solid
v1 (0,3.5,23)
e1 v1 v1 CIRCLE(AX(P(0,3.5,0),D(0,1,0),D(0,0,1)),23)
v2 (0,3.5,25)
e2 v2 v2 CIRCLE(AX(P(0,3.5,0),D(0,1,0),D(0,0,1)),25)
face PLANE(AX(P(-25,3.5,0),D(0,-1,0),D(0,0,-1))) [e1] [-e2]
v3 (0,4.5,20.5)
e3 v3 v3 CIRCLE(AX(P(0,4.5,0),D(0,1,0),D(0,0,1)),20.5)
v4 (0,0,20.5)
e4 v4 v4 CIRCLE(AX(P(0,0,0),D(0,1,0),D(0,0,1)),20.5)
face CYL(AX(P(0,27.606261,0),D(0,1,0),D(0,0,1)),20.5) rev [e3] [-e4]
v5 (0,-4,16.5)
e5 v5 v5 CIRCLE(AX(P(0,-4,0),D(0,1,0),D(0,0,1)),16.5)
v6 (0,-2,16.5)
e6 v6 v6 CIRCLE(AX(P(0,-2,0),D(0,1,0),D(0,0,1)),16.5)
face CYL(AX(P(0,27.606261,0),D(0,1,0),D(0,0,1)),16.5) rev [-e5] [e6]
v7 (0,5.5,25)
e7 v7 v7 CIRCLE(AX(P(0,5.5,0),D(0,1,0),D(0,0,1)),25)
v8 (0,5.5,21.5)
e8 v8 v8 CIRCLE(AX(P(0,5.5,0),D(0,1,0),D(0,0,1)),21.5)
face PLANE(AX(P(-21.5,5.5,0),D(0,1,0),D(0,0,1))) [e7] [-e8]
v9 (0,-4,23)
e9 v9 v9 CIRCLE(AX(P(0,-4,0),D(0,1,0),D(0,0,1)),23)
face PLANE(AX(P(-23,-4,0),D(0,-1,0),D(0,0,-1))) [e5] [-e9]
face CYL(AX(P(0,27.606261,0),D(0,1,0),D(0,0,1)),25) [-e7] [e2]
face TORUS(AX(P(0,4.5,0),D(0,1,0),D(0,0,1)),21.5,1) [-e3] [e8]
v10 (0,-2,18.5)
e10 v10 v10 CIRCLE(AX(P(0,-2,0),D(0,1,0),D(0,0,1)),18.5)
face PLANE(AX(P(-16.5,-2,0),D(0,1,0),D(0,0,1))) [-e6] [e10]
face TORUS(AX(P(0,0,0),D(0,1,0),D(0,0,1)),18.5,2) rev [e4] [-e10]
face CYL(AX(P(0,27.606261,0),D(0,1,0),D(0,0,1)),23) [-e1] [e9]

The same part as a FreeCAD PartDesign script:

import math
import FreeCAD as App
import Part
import Sketcher
from FreeCAD import Vector

doc = App.newDocument("Part")
body = doc.addObject("PartDesign::Body", "Body")

# Sketch on XY plane
sketch1 = body.newObject("Sketcher::SketchObject", "Sketch")
sketch1.AttachmentSupport = (doc.getObject("XY_Plane"), [""])
sketch1.MapMode = "FlatFace"
sketch1.addGeometry([
    Part.LineSegment(Vector(-16.5, -4, 0), Vector(-16.5, -2, 0)),  # 0
    Part.LineSegment(Vector(-16.5, -2, 0), Vector(-18.5, -2, 0)),  # 1
    Part.ArcOfCircle(Part.Circle(Vector(-18.5, 0, 0), Vector(0, 0, 1), 2), math.radians(-180), math.radians(-90)),  # 2
    Part.LineSegment(Vector(-20.5, 0, 0), Vector(-20.5, 4.5, 0)),  # 3
    Part.ArcOfCircle(Part.Circle(Vector(-21.5, 4.5, 0), Vector(0, 0, 1), 1), math.radians(0), math.radians(90)),  # 4
    Part.LineSegment(Vector(-21.5, 5.5, 0), Vector(-25, 5.5, 0)),  # 5
    Part.LineSegment(Vector(-25, 5.5, 0), Vector(-25, 3.5, 0)),  # 6
    Part.LineSegment(Vector(-25, 3.5, 0), Vector(-23, 3.5, 0)),  # 7
    Part.LineSegment(Vector(-23, 3.5, 0), Vector(-23, -4, 0)),  # 8
    Part.LineSegment(Vector(-23, -4, 0), Vector(-16.5, -4, 0)),  # 9
], False)
sketch1.addConstraint([
    Sketcher.Constraint("Coincident", 0, 2, 1, 1),
    Sketcher.Constraint("Tangent", 1, 2, 2, 2),
    Sketcher.Constraint("Tangent", 2, 1, 3, 1),
    Sketcher.Constraint("Tangent", 3, 2, 4, 1),
    Sketcher.Constraint("Tangent", 4, 2, 5, 1),
    Sketcher.Constraint("Coincident", 5, 2, 6, 1),
    Sketcher.Constraint("Coincident", 6, 2, 7, 1),
    Sketcher.Constraint("Coincident", 7, 2, 8, 1),
    Sketcher.Constraint("Coincident", 8, 2, 9, 1),
    Sketcher.Constraint("Coincident", 9, 2, 0, 1),
    Sketcher.Constraint("Vertical", 0),
    Sketcher.Constraint("Horizontal", 1),
    Sketcher.Constraint("Vertical", 3),
    Sketcher.Constraint("Horizontal", 5),
    Sketcher.Constraint("Vertical", 6),
    Sketcher.Constraint("Horizontal", 7),
    Sketcher.Constraint("Vertical", 8),
    Sketcher.Constraint("Horizontal", 9),
    Sketcher.Constraint("PointOnObject", 2, 3, -1),
    Sketcher.Constraint("Equal", 1, 7),
    Sketcher.Constraint("Equal", 7, 0),
    Sketcher.Constraint("Equal", 0, 6),
    Sketcher.Constraint("Radius", 2, 2.0),
    Sketcher.Constraint("Radius", 4, 1.0),
    Sketcher.Constraint("DistanceX", 1, 2, 1, 1, 2.0),
    Sketcher.Constraint("DistanceX", 5, 2, 5, 1, 3.5),
    Sketcher.Constraint("DistanceY", 3, 1, 3, 2, 4.5),
    Sketcher.Constraint("DistanceX", 5, 2, -1, 1, 25.0),
])
revolution = body.newObject("PartDesign::Revolution", "Revolution")
revolution.Profile = sketch1
revolution.ReferenceAxis = (sketch1, ["V_Axis"])
revolution.Angle = 360

doc.recompute()
